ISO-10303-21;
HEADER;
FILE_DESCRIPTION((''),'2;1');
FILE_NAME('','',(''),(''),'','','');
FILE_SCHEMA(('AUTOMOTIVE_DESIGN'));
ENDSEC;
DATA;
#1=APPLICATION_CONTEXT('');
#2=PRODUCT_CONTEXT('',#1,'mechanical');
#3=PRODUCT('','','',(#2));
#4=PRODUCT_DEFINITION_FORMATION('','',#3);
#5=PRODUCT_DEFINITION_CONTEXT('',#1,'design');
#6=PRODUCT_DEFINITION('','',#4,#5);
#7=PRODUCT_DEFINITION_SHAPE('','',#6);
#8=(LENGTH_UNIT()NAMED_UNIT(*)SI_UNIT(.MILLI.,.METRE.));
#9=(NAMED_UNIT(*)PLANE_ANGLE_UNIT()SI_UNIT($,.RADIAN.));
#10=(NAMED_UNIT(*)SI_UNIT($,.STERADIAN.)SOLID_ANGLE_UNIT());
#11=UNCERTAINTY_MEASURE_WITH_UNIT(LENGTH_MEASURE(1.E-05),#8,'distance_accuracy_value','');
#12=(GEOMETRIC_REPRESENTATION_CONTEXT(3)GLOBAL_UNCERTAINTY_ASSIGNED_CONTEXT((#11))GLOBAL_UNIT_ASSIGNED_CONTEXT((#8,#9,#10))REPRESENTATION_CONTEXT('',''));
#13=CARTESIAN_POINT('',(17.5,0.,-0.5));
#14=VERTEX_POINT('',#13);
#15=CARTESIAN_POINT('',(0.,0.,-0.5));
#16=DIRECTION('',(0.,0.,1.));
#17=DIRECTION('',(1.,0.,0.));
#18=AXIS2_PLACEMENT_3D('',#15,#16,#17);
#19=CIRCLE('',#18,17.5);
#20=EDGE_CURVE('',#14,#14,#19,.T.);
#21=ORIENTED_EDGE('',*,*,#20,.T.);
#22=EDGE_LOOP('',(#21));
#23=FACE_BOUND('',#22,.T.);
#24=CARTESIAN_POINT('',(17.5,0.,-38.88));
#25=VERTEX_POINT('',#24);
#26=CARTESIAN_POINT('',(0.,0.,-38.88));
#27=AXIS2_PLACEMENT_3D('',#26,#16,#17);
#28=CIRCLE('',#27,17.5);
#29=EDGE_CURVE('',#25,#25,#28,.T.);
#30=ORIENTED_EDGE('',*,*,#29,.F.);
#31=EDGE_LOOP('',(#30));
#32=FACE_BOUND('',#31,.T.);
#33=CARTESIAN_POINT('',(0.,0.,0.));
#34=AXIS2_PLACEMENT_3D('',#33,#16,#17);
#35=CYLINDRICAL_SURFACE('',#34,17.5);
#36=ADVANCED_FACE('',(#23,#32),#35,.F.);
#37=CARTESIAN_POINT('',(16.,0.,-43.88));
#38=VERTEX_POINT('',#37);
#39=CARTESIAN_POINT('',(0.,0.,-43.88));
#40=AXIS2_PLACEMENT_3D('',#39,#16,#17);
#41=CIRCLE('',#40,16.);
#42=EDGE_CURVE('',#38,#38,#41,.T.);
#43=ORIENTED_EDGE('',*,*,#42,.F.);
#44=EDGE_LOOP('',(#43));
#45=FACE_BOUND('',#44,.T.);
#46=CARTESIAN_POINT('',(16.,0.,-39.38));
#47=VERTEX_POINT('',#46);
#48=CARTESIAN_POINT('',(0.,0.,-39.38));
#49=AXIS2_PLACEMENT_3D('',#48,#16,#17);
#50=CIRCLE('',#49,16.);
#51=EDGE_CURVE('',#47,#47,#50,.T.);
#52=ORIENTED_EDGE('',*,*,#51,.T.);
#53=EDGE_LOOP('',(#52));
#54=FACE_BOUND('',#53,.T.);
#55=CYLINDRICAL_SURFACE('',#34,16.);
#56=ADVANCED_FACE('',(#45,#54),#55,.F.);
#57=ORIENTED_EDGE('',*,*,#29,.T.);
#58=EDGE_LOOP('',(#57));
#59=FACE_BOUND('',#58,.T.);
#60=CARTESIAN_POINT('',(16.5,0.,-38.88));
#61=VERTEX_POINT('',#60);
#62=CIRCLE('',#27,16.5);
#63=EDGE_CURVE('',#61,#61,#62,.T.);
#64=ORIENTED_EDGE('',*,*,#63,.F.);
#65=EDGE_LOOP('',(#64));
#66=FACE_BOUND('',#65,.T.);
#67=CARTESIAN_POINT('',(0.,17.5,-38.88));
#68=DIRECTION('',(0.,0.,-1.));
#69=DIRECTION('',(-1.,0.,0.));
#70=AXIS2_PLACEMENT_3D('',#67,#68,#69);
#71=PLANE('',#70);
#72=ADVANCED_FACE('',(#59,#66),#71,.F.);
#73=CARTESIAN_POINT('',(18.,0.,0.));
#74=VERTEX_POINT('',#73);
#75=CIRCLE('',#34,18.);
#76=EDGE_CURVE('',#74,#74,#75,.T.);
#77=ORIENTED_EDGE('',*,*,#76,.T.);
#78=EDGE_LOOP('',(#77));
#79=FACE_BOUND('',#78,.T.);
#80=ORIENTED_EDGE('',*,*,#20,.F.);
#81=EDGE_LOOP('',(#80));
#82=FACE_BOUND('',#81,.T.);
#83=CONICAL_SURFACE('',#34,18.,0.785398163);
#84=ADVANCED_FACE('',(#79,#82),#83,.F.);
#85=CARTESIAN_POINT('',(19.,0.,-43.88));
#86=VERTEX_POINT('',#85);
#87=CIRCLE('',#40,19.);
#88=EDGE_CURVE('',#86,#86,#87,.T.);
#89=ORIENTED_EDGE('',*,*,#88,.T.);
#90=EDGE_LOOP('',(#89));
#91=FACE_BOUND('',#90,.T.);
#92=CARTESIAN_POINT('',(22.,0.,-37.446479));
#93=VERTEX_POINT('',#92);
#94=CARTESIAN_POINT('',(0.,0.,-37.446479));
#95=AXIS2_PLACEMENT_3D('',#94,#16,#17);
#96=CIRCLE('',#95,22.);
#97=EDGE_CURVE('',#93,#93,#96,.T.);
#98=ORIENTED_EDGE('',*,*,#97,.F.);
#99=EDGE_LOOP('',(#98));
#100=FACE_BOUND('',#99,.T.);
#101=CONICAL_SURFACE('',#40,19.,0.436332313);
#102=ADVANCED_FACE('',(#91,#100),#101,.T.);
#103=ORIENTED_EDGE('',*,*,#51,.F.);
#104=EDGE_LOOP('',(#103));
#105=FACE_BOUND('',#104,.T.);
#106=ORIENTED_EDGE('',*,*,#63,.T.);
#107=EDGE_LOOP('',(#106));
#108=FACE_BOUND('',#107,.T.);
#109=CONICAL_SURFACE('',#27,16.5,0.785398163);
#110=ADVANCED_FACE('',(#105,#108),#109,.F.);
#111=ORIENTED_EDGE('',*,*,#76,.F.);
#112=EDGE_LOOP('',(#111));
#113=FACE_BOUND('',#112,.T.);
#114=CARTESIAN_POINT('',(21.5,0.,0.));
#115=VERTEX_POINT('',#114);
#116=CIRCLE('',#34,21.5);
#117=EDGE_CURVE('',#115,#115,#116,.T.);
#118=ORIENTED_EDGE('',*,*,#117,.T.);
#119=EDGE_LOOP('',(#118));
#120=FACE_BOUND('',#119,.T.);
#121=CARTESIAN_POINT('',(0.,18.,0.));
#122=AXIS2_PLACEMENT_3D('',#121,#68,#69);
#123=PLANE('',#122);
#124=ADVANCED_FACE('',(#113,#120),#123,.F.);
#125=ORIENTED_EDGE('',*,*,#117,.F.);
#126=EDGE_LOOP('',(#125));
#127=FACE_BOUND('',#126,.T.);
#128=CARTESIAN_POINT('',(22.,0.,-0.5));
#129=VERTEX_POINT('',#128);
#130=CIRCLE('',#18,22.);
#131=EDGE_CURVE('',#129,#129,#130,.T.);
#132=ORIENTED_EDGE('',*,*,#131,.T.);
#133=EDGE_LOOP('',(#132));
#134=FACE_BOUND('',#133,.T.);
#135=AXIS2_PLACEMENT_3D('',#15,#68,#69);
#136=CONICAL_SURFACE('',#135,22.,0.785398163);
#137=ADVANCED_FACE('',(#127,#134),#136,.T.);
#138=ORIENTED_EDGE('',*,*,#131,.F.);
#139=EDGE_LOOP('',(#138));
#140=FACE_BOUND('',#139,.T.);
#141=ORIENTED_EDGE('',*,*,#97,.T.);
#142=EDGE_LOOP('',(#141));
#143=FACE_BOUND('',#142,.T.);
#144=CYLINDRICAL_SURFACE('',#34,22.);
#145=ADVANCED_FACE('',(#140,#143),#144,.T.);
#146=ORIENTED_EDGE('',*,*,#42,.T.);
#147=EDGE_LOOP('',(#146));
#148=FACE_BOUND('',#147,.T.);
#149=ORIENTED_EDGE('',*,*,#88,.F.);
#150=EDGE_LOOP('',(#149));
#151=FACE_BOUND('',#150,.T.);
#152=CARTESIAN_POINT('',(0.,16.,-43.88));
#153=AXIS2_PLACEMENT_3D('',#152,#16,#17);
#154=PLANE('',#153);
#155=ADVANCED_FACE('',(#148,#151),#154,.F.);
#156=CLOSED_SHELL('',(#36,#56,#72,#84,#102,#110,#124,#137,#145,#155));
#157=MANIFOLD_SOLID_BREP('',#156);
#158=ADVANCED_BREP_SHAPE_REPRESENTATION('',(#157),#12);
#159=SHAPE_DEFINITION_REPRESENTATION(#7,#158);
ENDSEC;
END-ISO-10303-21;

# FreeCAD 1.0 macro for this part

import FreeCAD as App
import Part
import Sketcher
Q = App.Units.Quantity

doc = App.newDocument("Part")
body = doc.addObject("PartDesign::Body", "Body")

# Sketch on YZ plane
sketch1 = doc.addObject("Sketcher::SketchObject", "Sketch")
body.addObject(sketch1)
sketch1.AttachmentSupport = (doc.YZ_Plane, [""])
sketch1.MapMode = "FlatFace"
sketch1.addGeometry(Part.LineSegment(App.Vector(21.5, 0, 0), App.Vector(18, 0, 0)), False)
sketch1.addGeometry(Part.LineSegment(App.Vector(18, 0, 0), App.Vector(17.5, -0.5, 0)), False)
sketch1.addGeometry(Part.LineSegment(App.Vector(17.5, -0.5, 0), App.Vector(17.5, -38.9, 0)), False)
sketch1.addGeometry(Part.LineSegment(App.Vector(17.5, -38.9, 0), App.Vector(16.5, -38.9, 0)), False)
sketch1.addGeometry(Part.LineSegment(App.Vector(16.5, -38.9, 0), App.Vector(16, -39.4, 0)), False)
sketch1.addGeometry(Part.LineSegment(App.Vector(16, -39.4, 0), App.Vector(16, -43.9, 0)), False)
sketch1.addGeometry(Part.LineSegment(App.Vector(16, -43.9, 0), App.Vector(19, -43.9, 0)), False)
sketch1.addGeometry(Part.LineSegment(App.Vector(19, -43.9, 0), App.Vector(22, -37.4, 0)), False)
sketch1.addGeometry(Part.LineSegment(App.Vector(22, -37.4, 0), App.Vector(22, -0.5, 0)), False)
sketch1.addGeometry(Part.LineSegment(App.Vector(22, -0.5, 0), App.Vector(21.5, 0, 0)), False)
sketch1.addConstraint(Sketcher.Constraint("Coincident", 0, 2, 1, 1))
sketch1.addConstraint(Sketcher.Constraint("Coincident", 1, 2, 2, 1))
sketch1.addConstraint(Sketcher.Constraint("Coincident", 2, 2, 3, 1))
sketch1.addConstraint(Sketcher.Constraint("Coincident", 3, 2, 4, 1))
sketch1.addConstraint(Sketcher.Constraint("Coincident", 4, 2, 5, 1))
sketch1.addConstraint(Sketcher.Constraint("Coincident", 5, 2, 6, 1))
sketch1.addConstraint(Sketcher.Constraint("Coincident", 6, 2, 7, 1))
sketch1.addConstraint(Sketcher.Constraint("Coincident", 7, 2, 8, 1))
sketch1.addConstraint(Sketcher.Constraint("Coincident", 8, 2, 9, 1))
sketch1.addConstraint(Sketcher.Constraint("Coincident", 9, 2, 0, 1))
sketch1.addConstraint(Sketcher.Constraint("Horizontal", 0))
sketch1.addConstraint(Sketcher.Constraint("Vertical", 2))
sketch1.addConstraint(Sketcher.Constraint("Horizontal", 3))
sketch1.addConstraint(Sketcher.Constraint("Vertical", 5))
sketch1.addConstraint(Sketcher.Constraint("Horizontal", 6))
sketch1.addConstraint(Sketcher.Constraint("Vertical", 8))
sketch1.addConstraint(Sketcher.Constraint("PointOnObject", 0, 2, -1))
sketch1.addConstraint(Sketcher.Constraint("Parallel", 1, 4))
sketch1.addConstraint(Sketcher.Constraint("Perpendicular", 4, 9))
sketch1.addConstraint(Sketcher.Constraint("Horizontal", 1, 2, 8, 2))
sketch1.addConstraint(Sketcher.Constraint("Equal", 1, 4))
sketch1.addConstraint(Sketcher.Constraint("Equal", 4, 9))
sketch1.addConstraint(Sketcher.Constraint("DistanceX", 3, 2, 3, 1, Q("1 mm")))
sketch1.addConstraint(Sketcher.Constraint("DistanceX", 6, 1, 6, 2, Q("3 mm")))
sketch1.addConstraint(Sketcher.Constraint("Angle", 7, Q("65 deg")))
sketch1.addConstraint(Sketcher.Constraint("DistanceX", 0, 2, 0, 1, Q("3.5 mm")))
sketch1.addConstraint(Sketcher.Constraint("DistanceY", 5, 2, 5, 1, Q("4.5 mm")))
sketch1.addConstraint(Sketcher.Constraint("DistanceX", -1, 1, 0, 2, Q("18 mm")))
sketch1.addConstraint(Sketcher.Constraint("DistanceX", -1, 1, 4, 2, Q("16 mm")))
sketch1.addConstraint(Sketcher.Constraint("DistanceY", 2, 2, 2, 1, Q("38.38 mm")))
revolution = doc.addObject("PartDesign::Revolution", "Revolution")
body.addObject(revolution)
revolution.Profile = sketch1
revolution.ReferenceAxis = (sketch1, ["V_Axis"])
revolution.Angle = 360

doc.recompute()
